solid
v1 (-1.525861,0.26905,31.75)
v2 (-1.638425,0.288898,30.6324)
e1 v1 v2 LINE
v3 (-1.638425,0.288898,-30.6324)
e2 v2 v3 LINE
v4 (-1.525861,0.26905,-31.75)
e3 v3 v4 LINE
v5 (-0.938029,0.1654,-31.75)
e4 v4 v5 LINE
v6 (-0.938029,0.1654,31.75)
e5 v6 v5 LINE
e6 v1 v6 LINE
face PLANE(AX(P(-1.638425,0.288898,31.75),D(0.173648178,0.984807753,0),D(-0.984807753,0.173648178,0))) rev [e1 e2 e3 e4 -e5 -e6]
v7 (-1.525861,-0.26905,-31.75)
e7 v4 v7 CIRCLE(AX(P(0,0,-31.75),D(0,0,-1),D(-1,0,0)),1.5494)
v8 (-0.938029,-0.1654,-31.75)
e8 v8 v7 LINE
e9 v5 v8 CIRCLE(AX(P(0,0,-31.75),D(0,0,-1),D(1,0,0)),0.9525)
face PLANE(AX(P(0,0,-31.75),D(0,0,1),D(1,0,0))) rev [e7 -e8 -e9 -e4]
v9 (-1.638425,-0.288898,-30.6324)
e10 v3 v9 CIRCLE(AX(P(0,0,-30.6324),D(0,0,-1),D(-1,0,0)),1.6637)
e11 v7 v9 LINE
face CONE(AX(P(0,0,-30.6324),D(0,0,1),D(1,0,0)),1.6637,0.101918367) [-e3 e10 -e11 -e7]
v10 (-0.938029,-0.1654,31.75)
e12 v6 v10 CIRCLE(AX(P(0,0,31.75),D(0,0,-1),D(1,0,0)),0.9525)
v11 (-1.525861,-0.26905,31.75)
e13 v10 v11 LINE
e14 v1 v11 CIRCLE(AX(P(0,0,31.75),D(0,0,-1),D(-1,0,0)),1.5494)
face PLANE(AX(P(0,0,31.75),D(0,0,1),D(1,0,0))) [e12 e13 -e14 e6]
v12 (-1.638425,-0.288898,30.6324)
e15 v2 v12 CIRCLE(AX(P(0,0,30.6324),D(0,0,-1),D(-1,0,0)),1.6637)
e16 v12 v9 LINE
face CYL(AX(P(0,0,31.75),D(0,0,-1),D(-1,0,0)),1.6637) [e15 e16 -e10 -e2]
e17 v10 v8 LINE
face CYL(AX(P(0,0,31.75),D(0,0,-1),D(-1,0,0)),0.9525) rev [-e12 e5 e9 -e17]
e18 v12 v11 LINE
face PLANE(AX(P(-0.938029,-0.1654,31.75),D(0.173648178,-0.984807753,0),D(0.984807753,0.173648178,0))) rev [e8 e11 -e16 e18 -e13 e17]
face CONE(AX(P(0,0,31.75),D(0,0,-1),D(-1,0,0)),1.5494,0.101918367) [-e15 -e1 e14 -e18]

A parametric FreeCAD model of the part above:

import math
import FreeCAD as App
import Part
import Sketcher
from FreeCAD import Vector
Q = App.Units.Quantity

doc = App.newDocument("Part")
params = doc.addObject("Spreadsheet::Sheet", "Params")
for row, (alias, value) in enumerate([
    ("pad1_length", "2.5 in"),
    ("sketch2_height", "0.044 in"),
    ("groove_angle", "360 deg"),
], start=1):
    params.set(f"A{row}", alias)
    params.set(f"B{row}", "=" + value)
    params.setAlias(f"B{row}", alias)

body = doc.addObject("PartDesign::Body", "Body")

# Sketch on XY plane
sketch1 = body.newObject("Sketcher::SketchObject", "Sketch")
sketch1.AttachmentSupport = (doc.getObject("XY_Plane"), [""])
sketch1.MapMode = "FlatFace"
sketch1.addGeometry(Part.LineSegment(Vector(-1.64, 0.29, 0), Vector(-0.94, 0.17, 0)), False)
sketch1.addGeometry(Part.ArcOfCircle(Part.Circle(Vector(0, 0, 0), Vector(0, 0, 1), 0.95), math.radians(-170), math.radians(170)), False)
sketch1.addGeometry(Part.LineSegment(Vector(-0.94, -0.17, 0), Vector(-1.64, -0.29, 0)), False)
sketch1.addGeometry(Part.ArcOfCircle(Part.Circle(Vector(0, 0, 0), Vector(0, 0, 1), 1.66), math.radians(-170), math.radians(170)), False)
sketch1.addConstraint(Sketcher.Constraint("Coincident", 0, 2, 1, 2))
sketch1.addConstraint(Sketcher.Constraint("Coincident", 1, 1, 2, 1))
sketch1.addConstraint(Sketcher.Constraint("Coincident", 2, 2, 3, 1))
sketch1.addConstraint(Sketcher.Constraint("Coincident", 3, 2, 0, 1))
sketch1.addConstraint(Sketcher.Constraint("Coincident", 1, 3, -1, 1))
sketch1.addConstraint(Sketcher.Constraint("Coincident", 3, 3, -1, 1))
sketch1.addConstraint(Sketcher.Constraint("Vertical", 0, 2, 1, 1))
sketch1.addConstraint(Sketcher.Constraint("Vertical", 2, 2, 3, 2))
sketch1.addConstraint(Sketcher.Constraint("Angle", 0, Q("-10 deg")))
sketch1.addConstraint(Sketcher.Constraint("Radius", 1, Q("0.0375 in")))
sketch1.addConstraint(Sketcher.Constraint("Radius", 3, Q("0.0655 in")))
sketch1.addConstraint(Sketcher.Constraint("DistanceY", -1, 1, 0, 2, 0.1654))
pad1 = body.newObject("PartDesign::Pad", "Pad")
pad1.Profile = sketch1
pad1.setExpression("Length", "Params.pad1_length")
pad1.Midplane = True

# Sketch on YZ plane
sketch2 = body.newObject("Sketcher::SketchObject", "Sketch001")
sketch2.AttachmentSupport = (doc.getObject("YZ_Plane"), [""])
sketch2.MapMode = "FlatFace"
sketch2.addGeometry(Part.LineSegment(Vector(1.55, -31.75, 0), Vector(1.66, -31.75, 0)), False)
sketch2.addGeometry(Part.LineSegment(Vector(1.66, -31.75, 0), Vector(1.66, -30.63, 0)), False)
sketch2.addGeometry(Part.LineSegment(Vector(1.66, -30.63, 0), Vector(1.55, -31.75, 0)), False)
sketch2.addGeometry(Part.LineSegment(Vector(1.66, 30.63, 0), Vector(1.66, 31.75, 0)), False)
sketch2.addGeometry(Part.LineSegment(Vector(1.66, 31.75, 0), Vector(1.55, 31.75, 0)), False)
sketch2.addGeometry(Part.LineSegment(Vector(1.55, 31.75, 0), Vector(1.66, 30.63, 0)), False)
sketch2.addConstraint(Sketcher.Constraint("Coincident", 0, 2, 1, 1))
sketch2.addConstraint(Sketcher.Constraint("Coincident", 1, 2, 2, 1))
sketch2.addConstraint(Sketcher.Constraint("Coincident", 2, 2, 0, 1))
sketch2.addConstraint(Sketcher.Constraint("Coincident", 3, 2, 4, 1))
sketch2.addConstraint(Sketcher.Constraint("Coincident", 4, 2, 5, 1))
sketch2.addConstraint(Sketcher.Constraint("Coincident", 5, 2, 3, 1))
sketch2.addConstraint(Sketcher.Constraint("Horizontal", 0))
sketch2.addConstraint(Sketcher.Constraint("Vertical", 1))
sketch2.addConstraint(Sketcher.Constraint("Vertical", 3))
sketch2.addConstraint(Sketcher.Constraint("Horizontal", 4))
sketch2.addConstraint(Sketcher.Constraint("Symmetric", 0, 2, 3, 2, -1))
sketch2.addConstraint(Sketcher.Constraint("Vertical", 2, 2, 4, 2))
sketch2.addConstraint(Sketcher.Constraint("Equal", 1, 3))
sketch2.addConstraint(Sketcher.Constraint("DistanceY", 0, 2, 3, 2, Q("2.5 in")))
sketch2.addConstraint(Sketcher.Constraint("DistanceY", 1, 1, 1, 2, Q("0.044 in")))
sketch2.addConstraint(Sketcher.Constraint("DistanceX", 0, 1, 0, 2, Q("0.0045 in")))
sketch2.addConstraint(Sketcher.Constraint("DistanceX", -1, 1, 2, 2, Q("0.061 in")))
sketch2.setExpression("Constraints[14]", "Params.sketch2_height")
groove = body.newObject("PartDesign::Groove", "Groove")
groove.Profile = sketch2
groove.ReferenceAxis = (sketch2, ["V_Axis"])
groove.setExpression("Angle", "Params.groove_angle")

doc.recompute()
